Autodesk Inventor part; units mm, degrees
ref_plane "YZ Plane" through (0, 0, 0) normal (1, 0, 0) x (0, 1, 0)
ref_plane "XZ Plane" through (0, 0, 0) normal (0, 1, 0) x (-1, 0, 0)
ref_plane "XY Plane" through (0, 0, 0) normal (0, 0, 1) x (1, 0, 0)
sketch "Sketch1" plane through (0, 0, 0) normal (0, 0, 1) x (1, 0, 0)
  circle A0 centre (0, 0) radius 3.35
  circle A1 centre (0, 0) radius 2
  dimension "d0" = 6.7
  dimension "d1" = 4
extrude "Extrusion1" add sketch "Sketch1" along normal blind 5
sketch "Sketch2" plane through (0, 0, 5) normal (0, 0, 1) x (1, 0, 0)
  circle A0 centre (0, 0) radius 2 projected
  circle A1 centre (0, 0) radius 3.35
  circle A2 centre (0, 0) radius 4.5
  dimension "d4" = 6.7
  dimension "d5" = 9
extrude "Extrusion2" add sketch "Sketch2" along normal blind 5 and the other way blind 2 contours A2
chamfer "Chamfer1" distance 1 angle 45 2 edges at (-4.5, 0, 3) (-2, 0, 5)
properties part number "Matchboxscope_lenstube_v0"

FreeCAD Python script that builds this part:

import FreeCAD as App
import Part
import Sketcher


def edges_at(feature, points):
    """Names of the edges that pass closest to the given points."""
    edges = feature.Shape.Edges
    near = lambda p: min(range(len(edges)), key=lambda i: edges[i].distToShape(Part.Vertex(*p))[0])
    return sorted({f"Edge{near(p) + 1}" for p in points})

doc = App.newDocument("Part")
body = doc.addObject("PartDesign::Body", "Body")

sketch1 = body.newObject("Sketcher::SketchObject", "Sketch")
sketch1.AttachmentSupport = (doc.getObject("XY_Plane"), [""])
sketch1.MapMode = "FlatFace"
sketch1.addGeometry([
    Part.Circle(App.Vector(0, 0, 0), App.Vector(0, 0, 1), 3.4),
    Part.Circle(App.Vector(0, 0, 0), App.Vector(0, 0, 1), 2),
], False)
sketch1.addConstraint([
    Sketcher.Constraint("Coincident", 0, 3, -1, 1),
    Sketcher.Constraint("Coincident", 1, 3, -1, 1),
    Sketcher.Constraint("Diameter", 1, 4.0),
    Sketcher.Constraint("Diameter", 0, 6.7),
])
pad1 = body.newObject("PartDesign::Pad", "Pad")
pad1.Profile = sketch1
pad1.Length = 5

sketch2 = body.newObject("Sketcher::SketchObject", "Sketch001")
sketch2.AttachmentSupport = (doc.getObject("XY_Plane"), [""])
sketch2.MapMode = "FlatFace"
sketch2.AttachmentOffset = App.Placement(App.Vector(0, 0, 5), App.Rotation())
sketch2.addGeometry([
    Part.Circle(App.Vector(0, 0, 0), App.Vector(0, 0, 1), 4.5),
    Part.Circle(App.Vector(0, 0, 0), App.Vector(0, 0, 1), 3.4),
], False)
sketch2.addConstraint([
    Sketcher.Constraint("Coincident", 0, 3, -1, 1),
    Sketcher.Constraint("Coincident", 1, 3, -1, 1),
    Sketcher.Constraint("Diameter", 0, 9.0),
    Sketcher.Constraint("Diameter", 1, 6.7),
])
pad2 = body.newObject("PartDesign::Pad", "Pad001")
pad2.Profile = sketch2
pad2.Type = "TwoLengths"
pad2.Length = 5
pad2.Length2 = 2
doc.recompute()

chamfer = body.newObject("PartDesign::Chamfer", "Chamfer")
chamfer.Base = (pad2, edges_at(pad2, [(-4.5, 0, 3), (-2, 0, 5)]))
chamfer.Size = 1

doc.recompute()
